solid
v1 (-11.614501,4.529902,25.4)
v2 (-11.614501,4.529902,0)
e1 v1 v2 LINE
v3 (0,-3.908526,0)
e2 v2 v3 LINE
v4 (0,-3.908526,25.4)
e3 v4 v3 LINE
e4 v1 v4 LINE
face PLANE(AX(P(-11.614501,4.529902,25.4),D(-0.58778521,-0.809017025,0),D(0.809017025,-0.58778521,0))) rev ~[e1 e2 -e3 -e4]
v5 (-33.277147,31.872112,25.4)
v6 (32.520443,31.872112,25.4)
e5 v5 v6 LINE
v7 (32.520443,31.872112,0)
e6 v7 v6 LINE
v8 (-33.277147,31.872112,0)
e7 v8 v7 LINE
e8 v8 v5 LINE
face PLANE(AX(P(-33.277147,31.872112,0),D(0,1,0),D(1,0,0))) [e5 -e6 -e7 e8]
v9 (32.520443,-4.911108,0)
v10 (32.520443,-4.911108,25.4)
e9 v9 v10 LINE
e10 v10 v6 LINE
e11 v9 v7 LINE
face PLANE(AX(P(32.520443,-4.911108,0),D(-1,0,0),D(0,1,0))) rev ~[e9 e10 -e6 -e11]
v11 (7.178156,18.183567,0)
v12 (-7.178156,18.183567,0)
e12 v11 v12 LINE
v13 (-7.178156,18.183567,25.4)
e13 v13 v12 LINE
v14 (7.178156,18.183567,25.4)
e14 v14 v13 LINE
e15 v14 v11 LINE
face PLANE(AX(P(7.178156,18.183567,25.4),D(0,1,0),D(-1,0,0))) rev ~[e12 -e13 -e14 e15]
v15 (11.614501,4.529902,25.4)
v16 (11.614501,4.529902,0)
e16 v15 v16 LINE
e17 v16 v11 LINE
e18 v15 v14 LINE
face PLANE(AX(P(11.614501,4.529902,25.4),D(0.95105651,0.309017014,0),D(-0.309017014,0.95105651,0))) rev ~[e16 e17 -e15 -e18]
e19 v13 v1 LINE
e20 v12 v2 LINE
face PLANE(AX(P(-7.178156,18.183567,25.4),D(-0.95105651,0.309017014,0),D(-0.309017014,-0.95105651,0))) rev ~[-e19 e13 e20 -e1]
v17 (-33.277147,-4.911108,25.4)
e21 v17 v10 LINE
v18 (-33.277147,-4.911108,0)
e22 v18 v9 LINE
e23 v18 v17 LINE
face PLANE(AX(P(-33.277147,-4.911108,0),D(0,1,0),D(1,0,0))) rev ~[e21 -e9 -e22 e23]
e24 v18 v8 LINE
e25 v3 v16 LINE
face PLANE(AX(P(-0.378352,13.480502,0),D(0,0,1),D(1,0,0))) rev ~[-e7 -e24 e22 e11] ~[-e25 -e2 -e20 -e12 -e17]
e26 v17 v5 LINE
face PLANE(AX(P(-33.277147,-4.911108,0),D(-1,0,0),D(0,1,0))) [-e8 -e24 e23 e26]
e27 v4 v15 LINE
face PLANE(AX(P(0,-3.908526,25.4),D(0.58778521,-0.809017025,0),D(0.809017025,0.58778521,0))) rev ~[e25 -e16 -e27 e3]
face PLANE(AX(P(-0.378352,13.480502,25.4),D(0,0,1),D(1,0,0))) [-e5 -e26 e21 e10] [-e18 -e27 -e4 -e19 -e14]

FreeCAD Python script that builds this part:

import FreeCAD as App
import Part
import Sketcher
Q = App.Units.Quantity


def add_polygon(sketch, points):
    """Adds a closed chain of lines whose ends are joined by coincident constraints."""
    first, n = sketch.GeometryCount, len(points)
    for a, b in zip(points, points[1:] + points[:1]):
        sketch.addGeometry(Part.LineSegment(App.Vector(*a, 0), App.Vector(*b, 0)), False)
    for i in range(n):
        sketch.addConstraint(Sketcher.Constraint("Coincident", first + i, 2, first + (i + 1) % n, 1))

doc = App.newDocument("Part")
params = doc.addObject("Spreadsheet::Sheet", "Params")
for row, (alias, value) in enumerate([
    ("pad1_length", "1 in"),
    ("pocket1_length", "1 in"),
], start=1):
    params.set(f"A{row}", alias)
    params.set(f"B{row}", "=" + value)
    params.setAlias(f"B{row}", alias)

body = doc.addObject("PartDesign::Body", "Body")

# Sketch on XY plane
sketch1 = body.newObject("Sketcher::SketchObject", "Sketch")
sketch1.AttachmentSupport = (doc.getObject("XY_Plane"), [""])
sketch1.MapMode = "FlatFace"
add_polygon(sketch1, [(-33, 32), (-33, -5), (33, -5), (33, 32)])  # lines 0-3
sketch1.addConstraint(Sketcher.Constraint("Vertical", 0))
sketch1.addConstraint(Sketcher.Constraint("Horizontal", 1))
sketch1.addConstraint(Sketcher.Constraint("Vertical", 2))
sketch1.addConstraint(Sketcher.Constraint("Horizontal", 3))
sketch1.addConstraint(Sketcher.Constraint("DistanceX", 1, 1, 1, 2, Q("65.79759 mm")))
sketch1.addConstraint(Sketcher.Constraint("DistanceY", 0, 2, 0, 1, Q("36.78322 mm")))
sketch1.addConstraint(Sketcher.Constraint("DistanceX", 0, 2, -1, 1, Q("33.277147 mm")))
sketch1.addConstraint(Sketcher.Constraint("DistanceY", 0, 2, -1, 1, Q("4.911108 mm")))
pad1 = body.newObject("PartDesign::Pad", "Pad")
pad1.Profile = sketch1
pad1.setExpression("Length", "Params.pad1_length")

# Sketch on XY plane
sketch2 = body.newObject("Sketcher::SketchObject", "Sketch001")
sketch2.AttachmentSupport = (doc.getObject("XY_Plane"), [""])
sketch2.MapMode = "FlatFace"
sketch2.AttachmentOffset = App.Placement(App.Vector(0, 0, 1 * 25.4), App.Rotation())
add_polygon(sketch2, [(7, 18), (-7, 18), (-12, 5), (0, -4), (12, 5)])  # lines 0-4
sketch2.addConstraint(Sketcher.Constraint("Horizontal", 0))
sketch2.addConstraint(Sketcher.Constraint("Symmetric", 1, 2, 3, 2, -2))
sketch2.addConstraint(Sketcher.Constraint("PointOnObject", 2, 2, -2))
sketch2.addConstraint(Sketcher.Constraint("Equal", 1, 2))
sketch2.addConstraint(Sketcher.Constraint("Equal", 3, 4))
sketch2.addConstraint(Sketcher.Constraint("Angle", 1, Q("-108.000001 deg")))
sketch2.addConstraint(Sketcher.Constraint("Angle", 2, Q("-35.999997 deg")))
sketch2.addConstraint(Sketcher.Constraint("DistanceX", 1, 2, -1, 1, Q("11.614501 mm")))
sketch2.addConstraint(Sketcher.Constraint("DistanceY", -1, 1, 0, 2, Q("18.183567 mm")))
pocket1 = body.newObject("PartDesign::Pocket", "Pocket")
pocket1.Profile = sketch2
pocket1.setExpression("Length", "Params.pocket1_length")

doc.recompute()
